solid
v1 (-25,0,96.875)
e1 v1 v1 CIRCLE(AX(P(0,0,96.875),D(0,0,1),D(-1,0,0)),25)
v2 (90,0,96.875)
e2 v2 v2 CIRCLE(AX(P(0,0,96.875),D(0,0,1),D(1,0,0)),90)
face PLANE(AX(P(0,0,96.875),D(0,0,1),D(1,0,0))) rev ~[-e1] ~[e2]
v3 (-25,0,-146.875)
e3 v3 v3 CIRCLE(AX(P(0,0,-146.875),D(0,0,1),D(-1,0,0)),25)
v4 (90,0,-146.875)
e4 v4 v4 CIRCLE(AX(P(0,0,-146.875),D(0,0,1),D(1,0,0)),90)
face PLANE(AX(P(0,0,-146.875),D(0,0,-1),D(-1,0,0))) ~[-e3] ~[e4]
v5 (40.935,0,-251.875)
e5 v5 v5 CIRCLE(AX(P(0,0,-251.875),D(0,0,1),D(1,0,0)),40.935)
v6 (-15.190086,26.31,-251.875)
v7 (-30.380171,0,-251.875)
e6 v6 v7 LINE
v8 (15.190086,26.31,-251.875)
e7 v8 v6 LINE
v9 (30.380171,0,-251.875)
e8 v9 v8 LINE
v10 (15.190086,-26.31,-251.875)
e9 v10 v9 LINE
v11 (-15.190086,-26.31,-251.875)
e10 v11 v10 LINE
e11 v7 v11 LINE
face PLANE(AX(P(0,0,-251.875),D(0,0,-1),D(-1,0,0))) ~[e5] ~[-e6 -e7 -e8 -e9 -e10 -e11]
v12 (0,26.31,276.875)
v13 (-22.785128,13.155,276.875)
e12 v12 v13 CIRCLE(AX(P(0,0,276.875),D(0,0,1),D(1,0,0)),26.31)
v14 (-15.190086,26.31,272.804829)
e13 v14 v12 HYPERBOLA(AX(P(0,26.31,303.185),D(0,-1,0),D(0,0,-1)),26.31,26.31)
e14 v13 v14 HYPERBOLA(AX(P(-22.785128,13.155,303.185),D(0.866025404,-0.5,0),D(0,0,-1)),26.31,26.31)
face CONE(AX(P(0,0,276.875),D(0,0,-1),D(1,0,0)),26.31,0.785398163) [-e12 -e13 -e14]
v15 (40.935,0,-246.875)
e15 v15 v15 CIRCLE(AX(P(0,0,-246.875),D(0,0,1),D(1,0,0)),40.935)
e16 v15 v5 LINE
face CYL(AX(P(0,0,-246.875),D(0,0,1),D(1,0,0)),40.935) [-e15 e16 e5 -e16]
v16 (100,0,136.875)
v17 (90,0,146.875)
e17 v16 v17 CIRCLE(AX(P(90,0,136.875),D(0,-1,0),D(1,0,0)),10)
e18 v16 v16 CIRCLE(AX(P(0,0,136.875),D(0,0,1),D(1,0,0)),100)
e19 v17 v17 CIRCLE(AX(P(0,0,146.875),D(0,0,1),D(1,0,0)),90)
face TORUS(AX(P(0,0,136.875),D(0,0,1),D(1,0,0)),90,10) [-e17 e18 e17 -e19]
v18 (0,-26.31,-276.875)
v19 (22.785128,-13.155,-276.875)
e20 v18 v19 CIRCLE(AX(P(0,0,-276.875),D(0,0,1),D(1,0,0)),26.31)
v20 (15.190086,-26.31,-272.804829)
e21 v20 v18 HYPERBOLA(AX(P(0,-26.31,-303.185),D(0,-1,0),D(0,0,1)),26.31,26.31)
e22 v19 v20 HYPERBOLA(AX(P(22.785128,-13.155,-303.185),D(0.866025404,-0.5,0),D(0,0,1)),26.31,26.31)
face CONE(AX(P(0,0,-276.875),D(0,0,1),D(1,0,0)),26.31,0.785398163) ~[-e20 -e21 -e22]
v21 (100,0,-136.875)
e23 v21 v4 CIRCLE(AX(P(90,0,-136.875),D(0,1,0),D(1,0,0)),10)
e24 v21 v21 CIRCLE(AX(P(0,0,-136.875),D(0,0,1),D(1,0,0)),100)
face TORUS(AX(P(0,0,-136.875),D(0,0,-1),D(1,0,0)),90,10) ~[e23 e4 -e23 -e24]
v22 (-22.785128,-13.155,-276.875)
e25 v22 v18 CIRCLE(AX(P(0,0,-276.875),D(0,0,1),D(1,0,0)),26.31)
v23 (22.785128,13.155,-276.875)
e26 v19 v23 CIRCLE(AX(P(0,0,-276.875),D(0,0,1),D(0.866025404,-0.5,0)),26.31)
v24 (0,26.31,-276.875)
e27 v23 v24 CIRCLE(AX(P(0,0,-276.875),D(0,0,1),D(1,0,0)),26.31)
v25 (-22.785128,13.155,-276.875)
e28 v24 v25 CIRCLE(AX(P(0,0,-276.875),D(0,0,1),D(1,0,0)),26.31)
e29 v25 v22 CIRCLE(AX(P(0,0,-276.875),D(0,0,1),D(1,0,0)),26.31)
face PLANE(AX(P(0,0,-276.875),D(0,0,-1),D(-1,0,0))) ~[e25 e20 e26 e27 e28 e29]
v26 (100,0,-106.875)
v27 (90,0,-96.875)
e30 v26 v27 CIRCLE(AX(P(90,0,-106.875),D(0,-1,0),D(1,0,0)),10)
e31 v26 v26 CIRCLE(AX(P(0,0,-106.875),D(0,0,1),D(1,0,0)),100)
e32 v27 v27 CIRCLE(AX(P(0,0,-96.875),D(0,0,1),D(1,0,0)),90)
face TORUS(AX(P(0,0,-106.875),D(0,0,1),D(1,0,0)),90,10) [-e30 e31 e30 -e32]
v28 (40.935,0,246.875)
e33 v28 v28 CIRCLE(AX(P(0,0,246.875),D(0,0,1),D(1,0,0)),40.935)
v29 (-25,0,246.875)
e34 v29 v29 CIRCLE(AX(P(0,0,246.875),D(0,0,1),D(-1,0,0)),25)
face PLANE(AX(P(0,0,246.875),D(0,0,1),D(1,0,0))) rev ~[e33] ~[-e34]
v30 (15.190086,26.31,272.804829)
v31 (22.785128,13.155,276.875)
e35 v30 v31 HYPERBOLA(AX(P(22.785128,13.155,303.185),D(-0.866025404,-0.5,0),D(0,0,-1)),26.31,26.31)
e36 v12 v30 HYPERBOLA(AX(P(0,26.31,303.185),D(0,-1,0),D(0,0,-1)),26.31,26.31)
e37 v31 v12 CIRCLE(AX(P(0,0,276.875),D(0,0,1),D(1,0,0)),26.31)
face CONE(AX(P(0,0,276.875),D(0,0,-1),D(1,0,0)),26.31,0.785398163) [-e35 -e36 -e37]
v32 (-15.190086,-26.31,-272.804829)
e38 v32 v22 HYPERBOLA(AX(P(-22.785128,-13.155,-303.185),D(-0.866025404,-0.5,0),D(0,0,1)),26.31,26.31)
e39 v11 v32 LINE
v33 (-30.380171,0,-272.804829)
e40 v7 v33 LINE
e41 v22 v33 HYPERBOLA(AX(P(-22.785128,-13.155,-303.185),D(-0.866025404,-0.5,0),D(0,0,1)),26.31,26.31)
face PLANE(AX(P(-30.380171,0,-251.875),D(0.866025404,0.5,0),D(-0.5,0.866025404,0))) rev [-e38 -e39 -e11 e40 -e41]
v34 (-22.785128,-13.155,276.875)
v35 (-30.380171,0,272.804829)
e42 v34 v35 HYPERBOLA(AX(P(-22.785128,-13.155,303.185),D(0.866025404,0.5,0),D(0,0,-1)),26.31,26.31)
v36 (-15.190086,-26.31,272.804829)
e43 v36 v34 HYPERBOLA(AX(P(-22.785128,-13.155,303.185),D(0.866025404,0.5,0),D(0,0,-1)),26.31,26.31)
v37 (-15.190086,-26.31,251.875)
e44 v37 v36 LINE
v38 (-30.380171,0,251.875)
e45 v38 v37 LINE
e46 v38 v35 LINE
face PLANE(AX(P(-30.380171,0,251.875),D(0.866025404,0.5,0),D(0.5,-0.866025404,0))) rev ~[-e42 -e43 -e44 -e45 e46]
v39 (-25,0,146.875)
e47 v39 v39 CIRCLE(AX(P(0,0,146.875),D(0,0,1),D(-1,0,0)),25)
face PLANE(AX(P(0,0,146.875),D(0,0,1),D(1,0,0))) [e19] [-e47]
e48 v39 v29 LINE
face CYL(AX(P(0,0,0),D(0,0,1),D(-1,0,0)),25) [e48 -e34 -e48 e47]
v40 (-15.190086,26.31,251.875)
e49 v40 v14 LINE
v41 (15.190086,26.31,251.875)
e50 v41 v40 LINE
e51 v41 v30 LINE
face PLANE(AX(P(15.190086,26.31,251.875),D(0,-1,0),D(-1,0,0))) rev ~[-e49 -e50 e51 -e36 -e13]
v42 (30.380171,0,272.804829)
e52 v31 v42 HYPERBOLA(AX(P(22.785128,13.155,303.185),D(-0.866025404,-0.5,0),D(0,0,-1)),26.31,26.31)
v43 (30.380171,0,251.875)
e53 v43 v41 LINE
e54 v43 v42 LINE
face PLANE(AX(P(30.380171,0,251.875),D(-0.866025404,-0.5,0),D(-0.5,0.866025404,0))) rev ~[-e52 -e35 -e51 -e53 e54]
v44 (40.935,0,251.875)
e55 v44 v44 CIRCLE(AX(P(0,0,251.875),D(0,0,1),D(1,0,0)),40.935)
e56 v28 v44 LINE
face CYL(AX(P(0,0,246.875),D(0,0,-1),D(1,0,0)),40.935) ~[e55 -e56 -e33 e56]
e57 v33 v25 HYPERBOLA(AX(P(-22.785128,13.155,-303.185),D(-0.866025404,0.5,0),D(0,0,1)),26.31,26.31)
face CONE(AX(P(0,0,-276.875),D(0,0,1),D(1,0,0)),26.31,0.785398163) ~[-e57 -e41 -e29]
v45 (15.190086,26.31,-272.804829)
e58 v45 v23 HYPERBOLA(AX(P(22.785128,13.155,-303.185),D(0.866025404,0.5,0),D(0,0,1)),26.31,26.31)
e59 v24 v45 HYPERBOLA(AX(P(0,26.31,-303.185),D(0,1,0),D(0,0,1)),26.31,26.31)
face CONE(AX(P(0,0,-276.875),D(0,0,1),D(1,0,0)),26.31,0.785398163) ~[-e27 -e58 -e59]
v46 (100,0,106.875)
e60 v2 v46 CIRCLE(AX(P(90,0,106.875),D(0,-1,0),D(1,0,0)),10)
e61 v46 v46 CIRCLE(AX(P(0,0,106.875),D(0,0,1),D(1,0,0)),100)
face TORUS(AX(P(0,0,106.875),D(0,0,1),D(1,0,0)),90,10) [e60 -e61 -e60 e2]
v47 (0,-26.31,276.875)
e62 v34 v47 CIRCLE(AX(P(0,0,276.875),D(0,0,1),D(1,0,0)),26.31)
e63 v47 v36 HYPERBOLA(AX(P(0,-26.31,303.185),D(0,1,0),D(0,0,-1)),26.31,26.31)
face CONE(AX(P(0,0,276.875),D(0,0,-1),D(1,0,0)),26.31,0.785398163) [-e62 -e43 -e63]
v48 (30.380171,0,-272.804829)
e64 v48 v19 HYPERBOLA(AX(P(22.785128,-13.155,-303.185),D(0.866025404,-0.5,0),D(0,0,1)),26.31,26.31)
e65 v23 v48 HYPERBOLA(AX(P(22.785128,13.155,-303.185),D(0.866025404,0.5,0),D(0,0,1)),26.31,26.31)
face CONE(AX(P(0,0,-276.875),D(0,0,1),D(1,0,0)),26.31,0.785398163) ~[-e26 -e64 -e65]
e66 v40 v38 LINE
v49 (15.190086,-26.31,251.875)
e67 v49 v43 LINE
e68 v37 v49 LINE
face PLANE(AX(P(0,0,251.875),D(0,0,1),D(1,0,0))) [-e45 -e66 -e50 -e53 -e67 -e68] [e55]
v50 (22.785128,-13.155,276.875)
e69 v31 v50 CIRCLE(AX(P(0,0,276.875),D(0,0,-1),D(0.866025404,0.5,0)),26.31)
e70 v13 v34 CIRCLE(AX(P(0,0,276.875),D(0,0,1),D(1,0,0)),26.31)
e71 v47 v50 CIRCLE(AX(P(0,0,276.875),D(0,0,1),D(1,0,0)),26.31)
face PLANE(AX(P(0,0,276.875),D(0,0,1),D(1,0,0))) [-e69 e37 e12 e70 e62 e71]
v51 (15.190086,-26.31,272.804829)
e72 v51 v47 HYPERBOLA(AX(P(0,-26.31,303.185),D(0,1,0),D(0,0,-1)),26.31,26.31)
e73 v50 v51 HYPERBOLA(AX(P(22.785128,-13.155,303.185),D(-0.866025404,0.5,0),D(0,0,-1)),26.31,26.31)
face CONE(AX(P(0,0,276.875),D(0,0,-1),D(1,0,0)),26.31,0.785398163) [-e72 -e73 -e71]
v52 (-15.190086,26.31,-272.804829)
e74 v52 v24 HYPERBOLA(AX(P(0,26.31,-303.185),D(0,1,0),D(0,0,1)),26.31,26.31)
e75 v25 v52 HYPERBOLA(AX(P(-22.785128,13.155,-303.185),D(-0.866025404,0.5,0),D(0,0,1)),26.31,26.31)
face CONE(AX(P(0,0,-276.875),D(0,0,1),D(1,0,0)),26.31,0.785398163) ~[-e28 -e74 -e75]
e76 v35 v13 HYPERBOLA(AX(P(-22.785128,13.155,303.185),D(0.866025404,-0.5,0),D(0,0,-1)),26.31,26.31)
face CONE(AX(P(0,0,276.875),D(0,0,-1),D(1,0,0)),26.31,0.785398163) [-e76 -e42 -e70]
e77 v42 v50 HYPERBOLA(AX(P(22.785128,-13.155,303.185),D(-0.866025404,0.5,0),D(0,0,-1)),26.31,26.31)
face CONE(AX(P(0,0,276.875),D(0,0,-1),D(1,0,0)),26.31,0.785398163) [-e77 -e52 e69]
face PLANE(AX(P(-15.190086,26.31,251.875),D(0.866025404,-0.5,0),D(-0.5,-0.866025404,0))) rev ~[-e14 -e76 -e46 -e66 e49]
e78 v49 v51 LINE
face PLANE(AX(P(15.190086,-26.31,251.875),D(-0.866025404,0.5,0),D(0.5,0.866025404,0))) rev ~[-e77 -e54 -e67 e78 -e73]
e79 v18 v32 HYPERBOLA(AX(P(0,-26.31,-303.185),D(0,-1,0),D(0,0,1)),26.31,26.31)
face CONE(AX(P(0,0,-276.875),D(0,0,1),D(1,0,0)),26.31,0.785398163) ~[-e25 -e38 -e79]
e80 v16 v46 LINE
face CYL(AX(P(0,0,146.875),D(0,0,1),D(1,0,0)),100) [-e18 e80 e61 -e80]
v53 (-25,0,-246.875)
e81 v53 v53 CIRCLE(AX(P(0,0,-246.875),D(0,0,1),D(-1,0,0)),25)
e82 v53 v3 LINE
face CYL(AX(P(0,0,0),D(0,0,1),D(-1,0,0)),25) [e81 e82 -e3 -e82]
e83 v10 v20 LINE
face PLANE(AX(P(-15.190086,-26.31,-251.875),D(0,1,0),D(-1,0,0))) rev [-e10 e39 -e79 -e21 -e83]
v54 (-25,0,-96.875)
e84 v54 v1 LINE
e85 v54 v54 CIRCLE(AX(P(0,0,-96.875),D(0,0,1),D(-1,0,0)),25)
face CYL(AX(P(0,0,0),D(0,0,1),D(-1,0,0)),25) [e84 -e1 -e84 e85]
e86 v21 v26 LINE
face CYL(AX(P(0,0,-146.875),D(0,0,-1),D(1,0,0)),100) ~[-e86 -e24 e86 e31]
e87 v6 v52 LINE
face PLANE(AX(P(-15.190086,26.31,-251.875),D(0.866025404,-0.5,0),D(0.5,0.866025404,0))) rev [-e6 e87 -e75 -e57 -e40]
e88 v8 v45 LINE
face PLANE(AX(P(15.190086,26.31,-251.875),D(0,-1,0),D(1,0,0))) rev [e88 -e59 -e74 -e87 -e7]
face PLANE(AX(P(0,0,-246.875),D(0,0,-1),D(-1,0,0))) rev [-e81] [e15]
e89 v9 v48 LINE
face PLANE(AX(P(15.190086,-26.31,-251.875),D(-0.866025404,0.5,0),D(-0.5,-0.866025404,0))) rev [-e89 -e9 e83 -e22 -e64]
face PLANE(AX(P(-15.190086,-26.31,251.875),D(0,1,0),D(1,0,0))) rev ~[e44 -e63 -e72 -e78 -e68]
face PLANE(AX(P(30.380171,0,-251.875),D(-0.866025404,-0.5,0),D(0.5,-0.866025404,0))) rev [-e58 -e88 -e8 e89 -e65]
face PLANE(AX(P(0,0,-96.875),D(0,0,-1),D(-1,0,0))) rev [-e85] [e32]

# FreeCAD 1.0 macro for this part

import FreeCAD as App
import Part
import Sketcher
from FreeCAD import Vector
Q = App.Units.Quantity


def edges_at(feature, points):
    """Names of the edges that pass closest to the given points."""
    edges = feature.Shape.Edges
    near = lambda p: min(range(len(edges)), key=lambda i: edges[i].distToShape(Part.Vertex(*p))[0])
    return sorted({f"Edge{near(p) + 1}" for p in points})

doc = App.newDocument("Part")
params = doc.addObject("Spreadsheet::Sheet", "Params")
for row, (alias, value) in enumerate([
    ("sketch1_diameter", "50 mm"),
    ("pad1_length", "493.75 mm"),
    ("sketch2_diameter", "200 mm"),
    ("pad2_length", "50 mm"),
    ("fillet_radius", "10 mm"),
    ("sketch3_diameter", "81.87 mm"),
    ("pad3_length", "5 mm"),
    ("pad4_length", "25 mm"),
    ("sketch5_diameter", "52.62 mm"),
    ("pocket1_length", "25 mm"),
    ("pocket1_taper", "45 deg"),
], start=1):
    params.set(f"A{row}", alias)
    params.set(f"B{row}", "=" + value)
    params.setAlias(f"B{row}", alias)

body = doc.addObject("PartDesign::Body", "Body")

sketch1 = body.newObject("Sketcher::SketchObject", "Sketch")
sketch1.AttachmentSupport = (doc.getObject("XY_Plane"), [""])
sketch1.MapMode = "FlatFace"
sketch1.addGeometry(Part.Circle(Vector(0, 0, 0), Vector(0, 0, 1), 25), False)
sketch1.addConstraint([
    Sketcher.Constraint("Coincident", 0, 3, -1, 1),
    Sketcher.Constraint("Diameter", 0, Q("50 mm")),
])
sketch1.setExpression("Constraints[1]", "Params.sketch1_diameter")
pad1 = body.newObject("PartDesign::Pad", "Pad")
pad1.Profile = sketch1
pad1.setExpression("Length", "Params.pad1_length")
pad1.Midplane = True

sketch2 = body.newObject("Sketcher::SketchObject", "Sketch001")
sketch2.AttachmentSupport = (doc.getObject("XY_Plane"), [""])
sketch2.MapMode = "FlatFace"
sketch2.AttachmentOffset = App.Placement(Vector(0, 0, 146.875), App.Rotation())
sketch2.addGeometry(Part.Circle(Vector(0, 0, 0), Vector(0, 0, 1), 100), False)
sketch2.addConstraint([
    Sketcher.Constraint("Coincident", 0, 3, -1, 1),
    Sketcher.Constraint("Diameter", 0, Q("200 mm")),
])
sketch2.setExpression("Constraints[1]", "Params.sketch2_diameter")
pad2 = body.newObject("PartDesign::Pad", "Pad001")
pad2.Profile = sketch2
pad2.setExpression("Length", "Params.pad2_length")
pad2.Reversed = True
doc.recompute()

mirrored = body.newObject("PartDesign::Mirrored", "Mirrored")
mirrored.Originals = [pad2]
mirrored.MirrorPlane = (doc.getObject("XY_Plane"), [""])
body.Tip = mirrored
doc.recompute()

fillet = body.newObject("PartDesign::Fillet", "Fillet")
fillet.Base = (mirrored, edges_at(mirrored, [
    (-100, 0, -146.875),
    (-100, 0, -96.875),
    (-100, 0, 96.875),
    (-100, 0, 146.875),
]))
fillet.setExpression("Radius", "Params.fillet_radius")

sketch3 = body.newObject("Sketcher::SketchObject", "Sketch002")
sketch3.AttachmentSupport = (doc.getObject("XY_Plane"), [""])
sketch3.MapMode = "FlatFace"
sketch3.AttachmentOffset = App.Placement(Vector(0, 0, 246.875), App.Rotation())
sketch3.addGeometry(Part.Circle(Vector(0, 0, 0), Vector(0, 0, 1), 41), False)
sketch3.addConstraint([
    Sketcher.Constraint("Coincident", 0, 3, -1, 1),
    Sketcher.Constraint("Diameter", 0, Q("81.87 mm")),
])
sketch3.setExpression("Constraints[1]", "Params.sketch3_diameter")
pad3 = body.newObject("PartDesign::Pad", "Pad002")
pad3.Profile = sketch3
pad3.setExpression("Length", "Params.pad3_length")

sketch4 = body.newObject("Sketcher::SketchObject", "Sketch003")
sketch4.AttachmentSupport = (doc.getObject("XY_Plane"), [""])
sketch4.MapMode = "FlatFace"
sketch4.AttachmentOffset = App.Placement(Vector(0, 0, 251.875), App.Rotation())
sketch4.addGeometry([
    Part.LineSegment(Vector(-30, 0, 0), Vector(-15, -26, 0)),
    Part.LineSegment(Vector(-15, -26, 0), Vector(15, -26, 0)),
    Part.LineSegment(Vector(15, -26, 0), Vector(30, 0, 0)),
    Part.LineSegment(Vector(30, 0, 0), Vector(15, 26, 0)),
    Part.LineSegment(Vector(15, 26, 0), Vector(-15, 26, 0)),
    Part.LineSegment(Vector(-15, 26, 0), Vector(-30, 0, 0)),
], False)
sketch4.addConstraint([
    Sketcher.Constraint("Coincident", 0, 2, 1, 1),
    Sketcher.Constraint("Coincident", 1, 2, 2, 1),
    Sketcher.Constraint("Coincident", 2, 2, 3, 1),
    Sketcher.Constraint("Coincident", 3, 2, 4, 1),
    Sketcher.Constraint("Coincident", 4, 2, 5, 1),
    Sketcher.Constraint("Coincident", 5, 2, 0, 1),
    Sketcher.Constraint("Horizontal", 1),
    Sketcher.Constraint("Horizontal", 4),
    Sketcher.Constraint("Symmetric", 0, 2, 3, 2, -1, 1),
    Sketcher.Constraint("Symmetric", 2, 2, 5, 2, -1, 1),
    Sketcher.Constraint("PointOnObject", 2, 2, -1),
    Sketcher.Constraint("Parallel", 2, 5),
    Sketcher.Constraint("Vertical", 1, 2, 3, 2),
    Sketcher.Constraint("Angle", 0, Q("-60 deg")),
    Sketcher.Constraint("DistanceY", 0, 2, -1, 1, Q("26.31 mm")),
    Sketcher.Constraint("DistanceX", 1, 1, 1, 2, Q("30.380171 mm")),
])
pad4 = body.newObject("PartDesign::Pad", "Pad003")
pad4.Profile = sketch4
pad4.setExpression("Length", "Params.pad4_length")

sketch5 = body.newObject("Sketcher::SketchObject", "Sketch004")
sketch5.AttachmentSupport = (doc.getObject("XY_Plane"), [""])
sketch5.MapMode = "FlatFace"
sketch5.AttachmentOffset = App.Placement(Vector(0, 0, 276.875), App.Rotation())
sketch5.addGeometry([
    Part.Circle(Vector(0, 0, 0), Vector(0, 0, 1), 35),
    Part.Circle(Vector(0, 0, 0), Vector(0, 0, 1), 26),
], False)
sketch5.addConstraint([
    Sketcher.Constraint("Coincident", 0, 3, -1, 1),
    Sketcher.Constraint("Coincident", 1, 3, -1, 1),
    Sketcher.Constraint("Diameter", 1, Q("52.62 mm")),
    Sketcher.Constraint("Diameter", 0, Q("69.617853 mm")),
])
sketch5.setExpression("Constraints[2]", "Params.sketch5_diameter")
pocket1 = body.newObject("PartDesign::Pocket", "Pocket")
pocket1.Profile = sketch5
pocket1.setExpression("Length", "Params.pocket1_length")
pocket1.setExpression("TaperAngle", "Params.pocket1_taper")
doc.recompute()

mirrored2 = body.newObject("PartDesign::Mirrored", "Mirrored001")
mirrored2.Originals = [pad3, pad4, pocket1]
mirrored2.MirrorPlane = (doc.getObject("XY_Plane"), [""])
body.Tip = mirrored2

doc.recompute()
